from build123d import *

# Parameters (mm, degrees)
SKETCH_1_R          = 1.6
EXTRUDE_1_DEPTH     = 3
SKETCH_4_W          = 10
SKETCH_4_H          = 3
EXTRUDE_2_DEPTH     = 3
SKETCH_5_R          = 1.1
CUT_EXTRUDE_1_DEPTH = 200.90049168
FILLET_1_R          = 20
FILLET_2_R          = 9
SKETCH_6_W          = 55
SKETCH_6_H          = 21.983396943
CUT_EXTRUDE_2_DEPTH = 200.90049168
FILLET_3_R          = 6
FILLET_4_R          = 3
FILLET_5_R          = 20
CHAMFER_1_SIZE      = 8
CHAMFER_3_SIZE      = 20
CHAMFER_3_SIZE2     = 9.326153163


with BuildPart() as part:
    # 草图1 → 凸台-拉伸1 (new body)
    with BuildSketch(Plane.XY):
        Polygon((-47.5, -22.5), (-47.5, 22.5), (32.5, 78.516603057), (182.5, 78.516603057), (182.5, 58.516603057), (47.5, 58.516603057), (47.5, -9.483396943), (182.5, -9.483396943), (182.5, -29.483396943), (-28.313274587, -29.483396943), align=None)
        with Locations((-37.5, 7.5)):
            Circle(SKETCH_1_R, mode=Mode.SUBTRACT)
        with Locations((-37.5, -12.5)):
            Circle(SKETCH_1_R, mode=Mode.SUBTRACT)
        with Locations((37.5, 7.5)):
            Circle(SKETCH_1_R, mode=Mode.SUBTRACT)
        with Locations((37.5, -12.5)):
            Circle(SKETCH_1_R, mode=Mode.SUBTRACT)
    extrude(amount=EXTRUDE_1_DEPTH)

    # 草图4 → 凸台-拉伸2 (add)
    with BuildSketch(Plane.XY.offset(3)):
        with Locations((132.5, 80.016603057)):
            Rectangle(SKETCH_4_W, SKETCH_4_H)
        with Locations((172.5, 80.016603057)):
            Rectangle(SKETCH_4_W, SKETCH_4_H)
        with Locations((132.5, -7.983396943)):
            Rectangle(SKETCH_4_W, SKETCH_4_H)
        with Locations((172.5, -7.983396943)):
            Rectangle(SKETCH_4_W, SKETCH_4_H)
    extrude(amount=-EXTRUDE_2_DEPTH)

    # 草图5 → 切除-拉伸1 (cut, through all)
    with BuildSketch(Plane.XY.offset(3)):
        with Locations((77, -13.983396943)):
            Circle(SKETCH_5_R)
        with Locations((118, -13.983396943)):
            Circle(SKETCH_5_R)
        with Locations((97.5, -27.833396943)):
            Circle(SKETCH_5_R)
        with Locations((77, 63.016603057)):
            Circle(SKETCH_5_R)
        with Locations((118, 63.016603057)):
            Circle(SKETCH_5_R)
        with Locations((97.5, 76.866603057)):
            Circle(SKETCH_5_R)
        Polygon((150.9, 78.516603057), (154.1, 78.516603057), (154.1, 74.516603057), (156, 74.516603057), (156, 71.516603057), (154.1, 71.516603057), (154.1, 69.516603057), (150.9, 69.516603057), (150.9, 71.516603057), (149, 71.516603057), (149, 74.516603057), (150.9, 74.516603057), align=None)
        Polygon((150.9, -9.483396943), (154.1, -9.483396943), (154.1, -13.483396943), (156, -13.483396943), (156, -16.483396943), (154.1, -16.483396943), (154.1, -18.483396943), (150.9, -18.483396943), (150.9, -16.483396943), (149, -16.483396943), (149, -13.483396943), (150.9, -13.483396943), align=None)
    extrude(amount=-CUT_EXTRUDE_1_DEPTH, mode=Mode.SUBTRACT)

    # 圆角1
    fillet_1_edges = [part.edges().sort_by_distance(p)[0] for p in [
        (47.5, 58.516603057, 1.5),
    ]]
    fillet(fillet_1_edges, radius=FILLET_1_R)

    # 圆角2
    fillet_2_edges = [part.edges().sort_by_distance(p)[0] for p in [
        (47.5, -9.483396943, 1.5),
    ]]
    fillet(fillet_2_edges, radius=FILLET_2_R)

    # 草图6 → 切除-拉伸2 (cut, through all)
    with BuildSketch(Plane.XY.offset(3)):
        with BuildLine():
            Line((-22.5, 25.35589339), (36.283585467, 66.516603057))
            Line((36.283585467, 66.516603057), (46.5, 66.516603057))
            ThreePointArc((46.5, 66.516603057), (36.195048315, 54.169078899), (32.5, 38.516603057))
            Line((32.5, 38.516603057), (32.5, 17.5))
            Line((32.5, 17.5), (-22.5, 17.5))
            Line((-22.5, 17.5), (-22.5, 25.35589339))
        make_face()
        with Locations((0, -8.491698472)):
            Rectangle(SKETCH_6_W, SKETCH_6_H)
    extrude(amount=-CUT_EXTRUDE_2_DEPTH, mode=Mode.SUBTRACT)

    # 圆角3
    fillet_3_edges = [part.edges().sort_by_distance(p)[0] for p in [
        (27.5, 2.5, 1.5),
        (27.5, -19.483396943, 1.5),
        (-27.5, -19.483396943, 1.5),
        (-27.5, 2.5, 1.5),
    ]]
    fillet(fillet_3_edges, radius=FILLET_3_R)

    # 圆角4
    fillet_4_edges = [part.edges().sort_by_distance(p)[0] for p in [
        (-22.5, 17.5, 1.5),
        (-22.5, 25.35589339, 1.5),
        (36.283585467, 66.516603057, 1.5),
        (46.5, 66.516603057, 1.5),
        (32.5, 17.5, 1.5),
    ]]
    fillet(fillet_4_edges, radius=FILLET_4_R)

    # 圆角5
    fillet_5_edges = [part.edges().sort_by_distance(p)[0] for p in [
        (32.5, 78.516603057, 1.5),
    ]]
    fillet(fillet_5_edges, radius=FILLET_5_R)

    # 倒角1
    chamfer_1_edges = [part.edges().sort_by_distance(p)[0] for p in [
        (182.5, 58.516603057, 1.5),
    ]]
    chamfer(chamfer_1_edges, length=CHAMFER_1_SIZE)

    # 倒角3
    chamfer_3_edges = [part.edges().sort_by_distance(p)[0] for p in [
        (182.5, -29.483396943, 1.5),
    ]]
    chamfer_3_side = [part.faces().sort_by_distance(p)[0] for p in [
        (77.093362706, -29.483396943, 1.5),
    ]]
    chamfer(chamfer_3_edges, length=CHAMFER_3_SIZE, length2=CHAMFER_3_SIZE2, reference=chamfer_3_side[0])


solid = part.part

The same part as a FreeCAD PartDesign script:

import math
import FreeCAD as App
import Part
import Sketcher
Q = App.Units.Quantity


def edges_at(feature, points):
    """Names of the edges that pass closest to the given points."""
    edges = feature.Shape.Edges
    near = lambda p: min(range(len(edges)), key=lambda i: edges[i].distToShape(Part.Vertex(*p))[0])
    return sorted({f"Edge{near(p) + 1}" for p in points})


def add_polygon(sketch, points):
    """Adds a closed chain of lines whose ends are joined by coincident constraints."""
    first, n = sketch.GeometryCount, len(points)
    for a, b in zip(points, points[1:] + points[:1]):
        sketch.addGeometry(Part.LineSegment(App.Vector(*a, 0), App.Vector(*b, 0)), False)
    for i in range(n):
        sketch.addConstraint(Sketcher.Constraint("Coincident", first + i, 2, first + (i + 1) % n, 1))

doc = App.newDocument("Part")
body = doc.addObject("PartDesign::Body", "Body")

# Sketch on XY plane
sketch1 = body.newObject("Sketcher::SketchObject", "Sketch")
sketch1.AttachmentSupport = (doc.getObject("XY_Plane"), [""])
sketch1.MapMode = "FlatFace"
add_polygon(sketch1, [(-47.5, 22.5), (-47.5, -22.5), (-28.3, -29.5), (182.5, -29.5), (182.5, -9.5), (47.5, -9.5), (47.5, 58.5), (182.5, 58.5), (182.5, 78.5), (32.5, 78.5)])  # lines 0-9
sketch1.addGeometry(Part.Circle(App.Vector(37.5, -12.5, 0), App.Vector(0, 0, 1), 1.6), False)  # 10
sketch1.addGeometry(Part.Circle(App.Vector(-37.5, -12.5, 0), App.Vector(0, 0, 1), 1.6), False)  # 11
sketch1.addGeometry(Part.Circle(App.Vector(37.5, 7.5, 0), App.Vector(0, 0, 1), 1.6), False)  # 12
sketch1.addGeometry(Part.Circle(App.Vector(-37.5, 7.5, 0), App.Vector(0, 0, 1), 1.6), False)  # 13
sketch1.addConstraint([
    Sketcher.Constraint("Vertical", 0),
    Sketcher.Constraint("Horizontal", 2),
    Sketcher.Constraint("Vertical", 3),
    Sketcher.Constraint("Horizontal", 4),
    Sketcher.Constraint("Vertical", 5),
    Sketcher.Constraint("Horizontal", 6),
    Sketcher.Constraint("Vertical", 7),
    Sketcher.Constraint("Horizontal", 8),
    Sketcher.Constraint("Equal", 10, 11),
    Sketcher.Constraint("Equal", 11, 12),
    Sketcher.Constraint("Equal", 12, 13),
    Sketcher.Constraint("Symmetric", 10, 3, 11, 3, -2),
    Sketcher.Constraint("Symmetric", 12, 3, 13, 3, -2),
    Sketcher.Constraint("Vertical", 10, 3, 12, 3),
    Sketcher.Constraint("Vertical", 3, 2, 6, 2),
    Sketcher.Constraint("Equal", 3, 7),
    Sketcher.Constraint("Diameter", 10, 3.2),
    Sketcher.Constraint("DistanceX", 4, 2, 4, 1, 135.0),
    Sketcher.Constraint("DistanceX", 8, 2, 8, 1, 150.0),
    Sketcher.Constraint("DistanceY", 0, 2, 0, 1, 45.0),
    Sketcher.Constraint("DistanceY", 3, 1, 3, 2, 20.0),
    Sketcher.Constraint("DistanceY", 5, 1, 5, 2, 68.0),
    Sketcher.Constraint("Angle", 1, Q("-20 deg")),
    Sketcher.Constraint("Angle", 9, Q("-145 deg")),
    Sketcher.Constraint("DistanceX", 11, 3, 10, 3, 75.0),
    Sketcher.Constraint("DistanceY", 10, 3, 12, 3, 20.0),
    Sketcher.Constraint("DistanceX", 0, 2, 11, 3, 10.0),
    Sketcher.Constraint("DistanceY", 0, 2, 11, 3, 10.0),
    Sketcher.Constraint("DistanceX", 10, 3, 2, 2, 145.0),
    Sketcher.Constraint("DistanceY", 10, 3, -1, 1, 12.5),
])
pad1 = body.newObject("PartDesign::Pad", "Pad")
pad1.Profile = sketch1
pad1.Length = 3

# Sketch on XY plane
sketch2 = body.newObject("Sketcher::SketchObject", "Sketch001")
sketch2.AttachmentSupport = (doc.getObject("XY_Plane"), [""])
sketch2.MapMode = "FlatFace"
sketch2.AttachmentOffset = App.Placement(App.Vector(0, 0, 3), App.Rotation())
add_polygon(sketch2, [(127.5, 81.5), (127.5, 78.5), (137.5, 78.5), (137.5, 81.5)])  # lines 0-3
add_polygon(sketch2, [(167.5, 81.5), (167.5, 78.5), (177.5, 78.5), (177.5, 81.5)])  # lines 4-7
add_polygon(sketch2, [(127.5, -6.5), (127.5, -9.5), (137.5, -9.5), (137.5, -6.5)])  # lines 8-11
add_polygon(sketch2, [(167.5, -6.5), (167.5, -9.5), (177.5, -9.5), (177.5, -6.5)])  # lines 12-15
sketch2.addConstraint([
    Sketcher.Constraint("Vertical", 0),
    Sketcher.Constraint("Horizontal", 1),
    Sketcher.Constraint("Vertical", 2),
    Sketcher.Constraint("Horizontal", 3),
    Sketcher.Constraint("Vertical", 4),
    Sketcher.Constraint("Horizontal", 5),
    Sketcher.Constraint("Vertical", 6),
    Sketcher.Constraint("Horizontal", 7),
    Sketcher.Constraint("Vertical", 8),
    Sketcher.Constraint("Horizontal", 9),
    Sketcher.Constraint("Vertical", 10),
    Sketcher.Constraint("Horizontal", 11),
    Sketcher.Constraint("Vertical", 12),
    Sketcher.Constraint("Horizontal", 13),
    Sketcher.Constraint("Vertical", 14),
    Sketcher.Constraint("Horizontal", 15),
    Sketcher.Constraint("Horizontal", 1, 2, 4, 2),
    Sketcher.Constraint("Horizontal", 3, 2, 6, 2),
    Sketcher.Constraint("Horizontal", 9, 2, 12, 2),
    Sketcher.Constraint("Horizontal", 11, 2, 14, 2),
    Sketcher.Constraint("Vertical", 3, 2, 8, 2),
    Sketcher.Constraint("Vertical", 2, 2, 9, 2),
    Sketcher.Constraint("Vertical", 7, 2, 12, 2),
    Sketcher.Constraint("Vertical", 6, 2, 13, 2),
    Sketcher.Constraint("Equal", 3, 5),
    Sketcher.Constraint("Equal", 6, 8),
    Sketcher.Constraint("DistanceX", 1, 1, 1, 2, 10.0),
    Sketcher.Constraint("DistanceY", 0, 2, 0, 1, 3.0),
    Sketcher.Constraint("DistanceX", 1, 2, 4, 2, 30.0),
    Sketcher.Constraint("DistanceY", 8, 2, 0, 2, 88.0),
    Sketcher.Constraint("DistanceX", -1, 1, 0, 2, 127.5),
    Sketcher.Constraint("DistanceY", -1, 1, 0, 2, 78.516603),
])
pad2 = body.newObject("PartDesign::Pad", "Pad001")
pad2.Profile = sketch2
pad2.Length = 3
pad2.Reversed = True

# Sketch on XY plane
sketch3 = body.newObject("Sketcher::SketchObject", "Sketch002")
sketch3.AttachmentSupport = (doc.getObject("XY_Plane"), [""])
sketch3.MapMode = "FlatFace"
sketch3.AttachmentOffset = App.Placement(App.Vector(0, 0, 3), App.Rotation())
sketch3.addGeometry(Part.Circle(App.Vector(77, -14, 0), App.Vector(0, 0, 1), 1.1), False)  # 0
sketch3.addGeometry(Part.Circle(App.Vector(118, -14, 0), App.Vector(0, 0, 1), 1.1), False)  # 1
sketch3.addGeometry(Part.Circle(App.Vector(97.5, -27.8, 0), App.Vector(0, 0, 1), 1.1), False)  # 2
sketch3.addGeometry(Part.Circle(App.Vector(77, 63, 0), App.Vector(0, 0, 1), 1.1), False)  # 3
sketch3.addGeometry(Part.Circle(App.Vector(118, 63, 0), App.Vector(0, 0, 1), 1.1), False)  # 4
sketch3.addGeometry(Part.Circle(App.Vector(97.5, 76.9, 0), App.Vector(0, 0, 1), 1.1), False)  # 5
add_polygon(sketch3, [(154.1, 78.5), (150.9, 78.5), (150.9, 74.5), (149, 74.5), (149, 71.5), (150.9, 71.5), (150.9, 69.5), (154.1, 69.5), (154.1, 71.5), (156, 71.5), (156, 74.5), (154.1, 74.5)])  # lines 6-17
add_polygon(sketch3, [(154.1, -9.5), (150.9, -9.5), (150.9, -13.5), (149, -13.5), (149, -16.5), (150.9, -16.5), (150.9, -18.5), (154.1, -18.5), (154.1, -16.5), (156, -16.5), (156, -13.5), (154.1, -13.5)])  # lines 18-29
sketch3.addConstraint([
    Sketcher.Constraint("Horizontal", 6),
    Sketcher.Constraint("Vertical", 7),
    Sketcher.Constraint("Horizontal", 8),
    Sketcher.Constraint("Vertical", 9),
    Sketcher.Constraint("Horizontal", 10),
    Sketcher.Constraint("Vertical", 11),
    Sketcher.Constraint("Horizontal", 12),
    Sketcher.Constraint("Vertical", 13),
    Sketcher.Constraint("Horizontal", 14),
    Sketcher.Constraint("Vertical", 15),
    Sketcher.Constraint("Horizontal", 16),
    Sketcher.Constraint("Vertical", 17),
    Sketcher.Constraint("Horizontal", 18),
    Sketcher.Constraint("Vertical", 19),
    Sketcher.Constraint("Horizontal", 20),
    Sketcher.Constraint("Vertical", 21),
    Sketcher.Constraint("Horizontal", 22),
    Sketcher.Constraint("Vertical", 23),
    Sketcher.Constraint("Horizontal", 24),
    Sketcher.Constraint("Vertical", 25),
    Sketcher.Constraint("Horizontal", 26),
    Sketcher.Constraint("Vertical", 27),
    Sketcher.Constraint("Horizontal", 28),
    Sketcher.Constraint("Vertical", 29),
    Sketcher.Constraint("Equal", 0, 1),
    Sketcher.Constraint("Equal", 1, 2),
    Sketcher.Constraint("Equal", 2, 3),
    Sketcher.Constraint("Equal", 3, 4),
    Sketcher.Constraint("Equal", 4, 5),
    Sketcher.Constraint("Horizontal", 0, 3, 1, 3),
    Sketcher.Constraint("Horizontal", 3, 3, 4, 3),
    Sketcher.Constraint("Horizontal", 10, 2, 13, 2),
    Sketcher.Constraint("Horizontal", 8, 2, 15, 2),
    Sketcher.Constraint("Horizontal", 22, 2, 25, 2),
    Sketcher.Constraint("Horizontal", 20, 2, 27, 2),
    Sketcher.Constraint("Vertical", 0, 3, 3, 3),
    Sketcher.Constraint("Vertical", 1, 3, 4, 3),
    Sketcher.Constraint("Vertical", 2, 3, 5, 3),
    Sketcher.Constraint("Vertical", 7, 2, 10, 2),
    Sketcher.Constraint("Vertical", 13, 2, 16, 2),
    Sketcher.Constraint("Vertical", 11, 2, 18, 2),
    Sketcher.Constraint("Vertical", 9, 2, 20, 2),
    Sketcher.Constraint("Vertical", 19, 2, 22, 2),
    Sketcher.Constraint("Vertical", 17, 2, 24, 2),
    Sketcher.Constraint("Vertical", 15, 2, 26, 2),
    Sketcher.Constraint("Vertical", 25, 2, 28, 2),
    Sketcher.Constraint("Equal", 10, 14),
    Sketcher.Constraint("Equal", 17, 19),
    Sketcher.Constraint("Equal", 15, 21),
    Sketcher.Constraint("Equal", 13, 23),
    Sketcher.Constraint("Diameter", 0, 2.2),
    Sketcher.Constraint("DistanceY", 7, 2, 7, 1, 4.0),
    Sketcher.Constraint("DistanceY", 9, 2, 9, 1, 3.0),
    Sketcher.Constraint("DistanceY", 11, 2, 11, 1, 2.0),
    Sketcher.Constraint("DistanceX", 6, 2, 6, 1, 3.2),
    Sketcher.Constraint("DistanceX", 8, 2, 8, 1, 1.9),
    Sketcher.Constraint("DistanceX", -1, 1, 0, 3, 77.0),
    Sketcher.Constraint("DistanceX", -1, 1, 1, 3, 118.0),
    Sketcher.Constraint("DistanceX", -1, 1, 8, 2, 149.0),
    Sketcher.Constraint("DistanceY", 0, 3, 3, 3, 77.0),
    Sketcher.Constraint("DistanceY", 18, 2, 11, 2, 79.0),
    Sketcher.Constraint("DistanceX", -1, 1, 2, 3, 97.5),
    Sketcher.Constraint("DistanceY", 2, 3, 5, 3, 104.7),
    Sketcher.Constraint("DistanceY", 4, 3, 6, 2, 15.5),
    Sketcher.Constraint("DistanceY", 2, 3, 0, 3, 13.85),
    Sketcher.Constraint("DistanceY", 0, 3, -1, 1, 13.983397),
])
pocket1 = body.newObject("PartDesign::Pocket", "Pocket")
pocket1.Profile = sketch3
pocket1.Type = "ThroughAll"
doc.recompute()

fillet = body.newObject("PartDesign::Fillet", "Fillet")
fillet.Base = (pocket1, edges_at(pocket1, [(47.5, 58.517, 1.5)]))
fillet.Radius = 20
doc.recompute()

fillet2 = body.newObject("PartDesign::Fillet", "Fillet001")
fillet2.Base = (fillet, edges_at(fillet, [(47.5, -9.483, 1.5)]))
fillet2.Radius = 9

# Sketch on XY plane
sketch4 = body.newObject("Sketcher::SketchObject", "Sketch003")
sketch4.AttachmentSupport = (doc.getObject("XY_Plane"), [""])
sketch4.MapMode = "FlatFace"
sketch4.AttachmentOffset = App.Placement(App.Vector(0, 0, 3), App.Rotation())
sketch4.addGeometry(Part.LineSegment(App.Vector(36, 67, 0), App.Vector(-22, 25, 0)), False)  # 0
sketch4.addGeometry(Part.LineSegment(App.Vector(-22, 25, 0), App.Vector(-22, 18, 0)), False)  # 1
sketch4.addGeometry(Part.LineSegment(App.Vector(-22, 18, 0), App.Vector(32, 18, 0)), False)  # 2
sketch4.addGeometry(Part.LineSegment(App.Vector(32, 18, 0), App.Vector(32, 39, 0)), False)  # 3
sketch4.addGeometry(Part.ArcOfCircle(Part.Circle(App.Vector(68, 39, 0), App.Vector(0, 0, 1), 35), math.radians(127), math.radians(180)), False)  # 4
sketch4.addGeometry(Part.LineSegment(App.Vector(46, 67, 0), App.Vector(36, 67, 0)), False)  # 5
add_polygon(sketch4, [(-28, 2), (-28, -19), (28, -19), (28, 2)])  # lines 6-9
sketch4.addConstraint([
    Sketcher.Constraint("Coincident", 0, 2, 1, 1),
    Sketcher.Constraint("Coincident", 1, 2, 2, 1),
    Sketcher.Constraint("Coincident", 2, 2, 3, 1),
    Sketcher.Constraint("Tangent", 3, 2, 4, 2),
    Sketcher.Constraint("Coincident", 4, 1, 5, 1),
    Sketcher.Constraint("Coincident", 5, 2, 0, 1),
    Sketcher.Constraint("Vertical", 1),
    Sketcher.Constraint("Horizontal", 2),
    Sketcher.Constraint("Vertical", 3),
    Sketcher.Constraint("Horizontal", 5),
    Sketcher.Constraint("Vertical", 6),
    Sketcher.Constraint("Horizontal", 7),
    Sketcher.Constraint("Vertical", 8),
    Sketcher.Constraint("Horizontal", 9),
    Sketcher.Constraint("Equal", 2, 7),
    Sketcher.Constraint("Radius", 4, 35.0),
    Sketcher.Constraint("DistanceX", 2, 1, 2, 2, 55.0),
    Sketcher.Constraint("Angle", 0, Q("-145 deg")),
    Sketcher.Constraint("DistanceX", 3, 2, 4, 1, 14.0),
    Sketcher.Constraint("DistanceX", 6, 2, 1, 2, 5.0),
    Sketcher.Constraint("DistanceY", 6, 2, 3, 2, 58.0),
    Sketcher.Constraint("DistanceY", 8, 2, 2, 2, 15.0),
    Sketcher.Constraint("DistanceX", -1, 1, 4, 3, 67.5),
    Sketcher.Constraint("DistanceY", -1, 1, 1, 2, 17.5),
    Sketcher.Constraint("DistanceX", 5, 2, 5, 1, 10.216415),
    Sketcher.Constraint("DistanceY", 1, 2, 1, 1, 7.855893),
])
pocket2 = body.newObject("PartDesign::Pocket", "Pocket001")
pocket2.Profile = sketch4
pocket2.Type = "ThroughAll"
doc.recompute()

fillet3 = body.newObject("PartDesign::Fillet", "Fillet002")
fillet3.Base = (pocket2, edges_at(pocket2, [
    (27.5, 2.5, 1.5),
    (27.5, -19.483, 1.5),
    (-27.5, -19.483, 1.5),
    (-27.5, 2.5, 1.5),
]))
fillet3.Radius = 6
doc.recompute()

fillet4 = body.newObject("PartDesign::Fillet", "Fillet003")
fillet4.Base = (fillet3, edges_at(fillet3, [
    (-22.5, 17.5, 1.5),
    (-22.5, 25.356, 1.5),
    (36.284, 66.517, 1.5),
    (46.5, 66.517, 1.5),
    (32.5, 17.5, 1.5),
]))
fillet4.Radius = 3
doc.recompute()

fillet5 = body.newObject("PartDesign::Fillet", "Fillet004")
fillet5.Base = (fillet4, edges_at(fillet4, [(32.5, 78.517, 1.5)]))
fillet5.Radius = 20
doc.recompute()

chamfer = body.newObject("PartDesign::Chamfer", "Chamfer")
chamfer.Base = (fillet5, edges_at(fillet5, [(182.5, 58.517, 1.5)]))
chamfer.Size = 8
doc.recompute()

chamfer2 = body.newObject("PartDesign::Chamfer", "Chamfer001")
chamfer2.Base = (chamfer, edges_at(chamfer, [(182.5, -29.483, 1.5)]))
chamfer2.ChamferType = "Two distances"
chamfer2.Size = 20
chamfer2.Size2 = 9.326153

doc.recompute()
